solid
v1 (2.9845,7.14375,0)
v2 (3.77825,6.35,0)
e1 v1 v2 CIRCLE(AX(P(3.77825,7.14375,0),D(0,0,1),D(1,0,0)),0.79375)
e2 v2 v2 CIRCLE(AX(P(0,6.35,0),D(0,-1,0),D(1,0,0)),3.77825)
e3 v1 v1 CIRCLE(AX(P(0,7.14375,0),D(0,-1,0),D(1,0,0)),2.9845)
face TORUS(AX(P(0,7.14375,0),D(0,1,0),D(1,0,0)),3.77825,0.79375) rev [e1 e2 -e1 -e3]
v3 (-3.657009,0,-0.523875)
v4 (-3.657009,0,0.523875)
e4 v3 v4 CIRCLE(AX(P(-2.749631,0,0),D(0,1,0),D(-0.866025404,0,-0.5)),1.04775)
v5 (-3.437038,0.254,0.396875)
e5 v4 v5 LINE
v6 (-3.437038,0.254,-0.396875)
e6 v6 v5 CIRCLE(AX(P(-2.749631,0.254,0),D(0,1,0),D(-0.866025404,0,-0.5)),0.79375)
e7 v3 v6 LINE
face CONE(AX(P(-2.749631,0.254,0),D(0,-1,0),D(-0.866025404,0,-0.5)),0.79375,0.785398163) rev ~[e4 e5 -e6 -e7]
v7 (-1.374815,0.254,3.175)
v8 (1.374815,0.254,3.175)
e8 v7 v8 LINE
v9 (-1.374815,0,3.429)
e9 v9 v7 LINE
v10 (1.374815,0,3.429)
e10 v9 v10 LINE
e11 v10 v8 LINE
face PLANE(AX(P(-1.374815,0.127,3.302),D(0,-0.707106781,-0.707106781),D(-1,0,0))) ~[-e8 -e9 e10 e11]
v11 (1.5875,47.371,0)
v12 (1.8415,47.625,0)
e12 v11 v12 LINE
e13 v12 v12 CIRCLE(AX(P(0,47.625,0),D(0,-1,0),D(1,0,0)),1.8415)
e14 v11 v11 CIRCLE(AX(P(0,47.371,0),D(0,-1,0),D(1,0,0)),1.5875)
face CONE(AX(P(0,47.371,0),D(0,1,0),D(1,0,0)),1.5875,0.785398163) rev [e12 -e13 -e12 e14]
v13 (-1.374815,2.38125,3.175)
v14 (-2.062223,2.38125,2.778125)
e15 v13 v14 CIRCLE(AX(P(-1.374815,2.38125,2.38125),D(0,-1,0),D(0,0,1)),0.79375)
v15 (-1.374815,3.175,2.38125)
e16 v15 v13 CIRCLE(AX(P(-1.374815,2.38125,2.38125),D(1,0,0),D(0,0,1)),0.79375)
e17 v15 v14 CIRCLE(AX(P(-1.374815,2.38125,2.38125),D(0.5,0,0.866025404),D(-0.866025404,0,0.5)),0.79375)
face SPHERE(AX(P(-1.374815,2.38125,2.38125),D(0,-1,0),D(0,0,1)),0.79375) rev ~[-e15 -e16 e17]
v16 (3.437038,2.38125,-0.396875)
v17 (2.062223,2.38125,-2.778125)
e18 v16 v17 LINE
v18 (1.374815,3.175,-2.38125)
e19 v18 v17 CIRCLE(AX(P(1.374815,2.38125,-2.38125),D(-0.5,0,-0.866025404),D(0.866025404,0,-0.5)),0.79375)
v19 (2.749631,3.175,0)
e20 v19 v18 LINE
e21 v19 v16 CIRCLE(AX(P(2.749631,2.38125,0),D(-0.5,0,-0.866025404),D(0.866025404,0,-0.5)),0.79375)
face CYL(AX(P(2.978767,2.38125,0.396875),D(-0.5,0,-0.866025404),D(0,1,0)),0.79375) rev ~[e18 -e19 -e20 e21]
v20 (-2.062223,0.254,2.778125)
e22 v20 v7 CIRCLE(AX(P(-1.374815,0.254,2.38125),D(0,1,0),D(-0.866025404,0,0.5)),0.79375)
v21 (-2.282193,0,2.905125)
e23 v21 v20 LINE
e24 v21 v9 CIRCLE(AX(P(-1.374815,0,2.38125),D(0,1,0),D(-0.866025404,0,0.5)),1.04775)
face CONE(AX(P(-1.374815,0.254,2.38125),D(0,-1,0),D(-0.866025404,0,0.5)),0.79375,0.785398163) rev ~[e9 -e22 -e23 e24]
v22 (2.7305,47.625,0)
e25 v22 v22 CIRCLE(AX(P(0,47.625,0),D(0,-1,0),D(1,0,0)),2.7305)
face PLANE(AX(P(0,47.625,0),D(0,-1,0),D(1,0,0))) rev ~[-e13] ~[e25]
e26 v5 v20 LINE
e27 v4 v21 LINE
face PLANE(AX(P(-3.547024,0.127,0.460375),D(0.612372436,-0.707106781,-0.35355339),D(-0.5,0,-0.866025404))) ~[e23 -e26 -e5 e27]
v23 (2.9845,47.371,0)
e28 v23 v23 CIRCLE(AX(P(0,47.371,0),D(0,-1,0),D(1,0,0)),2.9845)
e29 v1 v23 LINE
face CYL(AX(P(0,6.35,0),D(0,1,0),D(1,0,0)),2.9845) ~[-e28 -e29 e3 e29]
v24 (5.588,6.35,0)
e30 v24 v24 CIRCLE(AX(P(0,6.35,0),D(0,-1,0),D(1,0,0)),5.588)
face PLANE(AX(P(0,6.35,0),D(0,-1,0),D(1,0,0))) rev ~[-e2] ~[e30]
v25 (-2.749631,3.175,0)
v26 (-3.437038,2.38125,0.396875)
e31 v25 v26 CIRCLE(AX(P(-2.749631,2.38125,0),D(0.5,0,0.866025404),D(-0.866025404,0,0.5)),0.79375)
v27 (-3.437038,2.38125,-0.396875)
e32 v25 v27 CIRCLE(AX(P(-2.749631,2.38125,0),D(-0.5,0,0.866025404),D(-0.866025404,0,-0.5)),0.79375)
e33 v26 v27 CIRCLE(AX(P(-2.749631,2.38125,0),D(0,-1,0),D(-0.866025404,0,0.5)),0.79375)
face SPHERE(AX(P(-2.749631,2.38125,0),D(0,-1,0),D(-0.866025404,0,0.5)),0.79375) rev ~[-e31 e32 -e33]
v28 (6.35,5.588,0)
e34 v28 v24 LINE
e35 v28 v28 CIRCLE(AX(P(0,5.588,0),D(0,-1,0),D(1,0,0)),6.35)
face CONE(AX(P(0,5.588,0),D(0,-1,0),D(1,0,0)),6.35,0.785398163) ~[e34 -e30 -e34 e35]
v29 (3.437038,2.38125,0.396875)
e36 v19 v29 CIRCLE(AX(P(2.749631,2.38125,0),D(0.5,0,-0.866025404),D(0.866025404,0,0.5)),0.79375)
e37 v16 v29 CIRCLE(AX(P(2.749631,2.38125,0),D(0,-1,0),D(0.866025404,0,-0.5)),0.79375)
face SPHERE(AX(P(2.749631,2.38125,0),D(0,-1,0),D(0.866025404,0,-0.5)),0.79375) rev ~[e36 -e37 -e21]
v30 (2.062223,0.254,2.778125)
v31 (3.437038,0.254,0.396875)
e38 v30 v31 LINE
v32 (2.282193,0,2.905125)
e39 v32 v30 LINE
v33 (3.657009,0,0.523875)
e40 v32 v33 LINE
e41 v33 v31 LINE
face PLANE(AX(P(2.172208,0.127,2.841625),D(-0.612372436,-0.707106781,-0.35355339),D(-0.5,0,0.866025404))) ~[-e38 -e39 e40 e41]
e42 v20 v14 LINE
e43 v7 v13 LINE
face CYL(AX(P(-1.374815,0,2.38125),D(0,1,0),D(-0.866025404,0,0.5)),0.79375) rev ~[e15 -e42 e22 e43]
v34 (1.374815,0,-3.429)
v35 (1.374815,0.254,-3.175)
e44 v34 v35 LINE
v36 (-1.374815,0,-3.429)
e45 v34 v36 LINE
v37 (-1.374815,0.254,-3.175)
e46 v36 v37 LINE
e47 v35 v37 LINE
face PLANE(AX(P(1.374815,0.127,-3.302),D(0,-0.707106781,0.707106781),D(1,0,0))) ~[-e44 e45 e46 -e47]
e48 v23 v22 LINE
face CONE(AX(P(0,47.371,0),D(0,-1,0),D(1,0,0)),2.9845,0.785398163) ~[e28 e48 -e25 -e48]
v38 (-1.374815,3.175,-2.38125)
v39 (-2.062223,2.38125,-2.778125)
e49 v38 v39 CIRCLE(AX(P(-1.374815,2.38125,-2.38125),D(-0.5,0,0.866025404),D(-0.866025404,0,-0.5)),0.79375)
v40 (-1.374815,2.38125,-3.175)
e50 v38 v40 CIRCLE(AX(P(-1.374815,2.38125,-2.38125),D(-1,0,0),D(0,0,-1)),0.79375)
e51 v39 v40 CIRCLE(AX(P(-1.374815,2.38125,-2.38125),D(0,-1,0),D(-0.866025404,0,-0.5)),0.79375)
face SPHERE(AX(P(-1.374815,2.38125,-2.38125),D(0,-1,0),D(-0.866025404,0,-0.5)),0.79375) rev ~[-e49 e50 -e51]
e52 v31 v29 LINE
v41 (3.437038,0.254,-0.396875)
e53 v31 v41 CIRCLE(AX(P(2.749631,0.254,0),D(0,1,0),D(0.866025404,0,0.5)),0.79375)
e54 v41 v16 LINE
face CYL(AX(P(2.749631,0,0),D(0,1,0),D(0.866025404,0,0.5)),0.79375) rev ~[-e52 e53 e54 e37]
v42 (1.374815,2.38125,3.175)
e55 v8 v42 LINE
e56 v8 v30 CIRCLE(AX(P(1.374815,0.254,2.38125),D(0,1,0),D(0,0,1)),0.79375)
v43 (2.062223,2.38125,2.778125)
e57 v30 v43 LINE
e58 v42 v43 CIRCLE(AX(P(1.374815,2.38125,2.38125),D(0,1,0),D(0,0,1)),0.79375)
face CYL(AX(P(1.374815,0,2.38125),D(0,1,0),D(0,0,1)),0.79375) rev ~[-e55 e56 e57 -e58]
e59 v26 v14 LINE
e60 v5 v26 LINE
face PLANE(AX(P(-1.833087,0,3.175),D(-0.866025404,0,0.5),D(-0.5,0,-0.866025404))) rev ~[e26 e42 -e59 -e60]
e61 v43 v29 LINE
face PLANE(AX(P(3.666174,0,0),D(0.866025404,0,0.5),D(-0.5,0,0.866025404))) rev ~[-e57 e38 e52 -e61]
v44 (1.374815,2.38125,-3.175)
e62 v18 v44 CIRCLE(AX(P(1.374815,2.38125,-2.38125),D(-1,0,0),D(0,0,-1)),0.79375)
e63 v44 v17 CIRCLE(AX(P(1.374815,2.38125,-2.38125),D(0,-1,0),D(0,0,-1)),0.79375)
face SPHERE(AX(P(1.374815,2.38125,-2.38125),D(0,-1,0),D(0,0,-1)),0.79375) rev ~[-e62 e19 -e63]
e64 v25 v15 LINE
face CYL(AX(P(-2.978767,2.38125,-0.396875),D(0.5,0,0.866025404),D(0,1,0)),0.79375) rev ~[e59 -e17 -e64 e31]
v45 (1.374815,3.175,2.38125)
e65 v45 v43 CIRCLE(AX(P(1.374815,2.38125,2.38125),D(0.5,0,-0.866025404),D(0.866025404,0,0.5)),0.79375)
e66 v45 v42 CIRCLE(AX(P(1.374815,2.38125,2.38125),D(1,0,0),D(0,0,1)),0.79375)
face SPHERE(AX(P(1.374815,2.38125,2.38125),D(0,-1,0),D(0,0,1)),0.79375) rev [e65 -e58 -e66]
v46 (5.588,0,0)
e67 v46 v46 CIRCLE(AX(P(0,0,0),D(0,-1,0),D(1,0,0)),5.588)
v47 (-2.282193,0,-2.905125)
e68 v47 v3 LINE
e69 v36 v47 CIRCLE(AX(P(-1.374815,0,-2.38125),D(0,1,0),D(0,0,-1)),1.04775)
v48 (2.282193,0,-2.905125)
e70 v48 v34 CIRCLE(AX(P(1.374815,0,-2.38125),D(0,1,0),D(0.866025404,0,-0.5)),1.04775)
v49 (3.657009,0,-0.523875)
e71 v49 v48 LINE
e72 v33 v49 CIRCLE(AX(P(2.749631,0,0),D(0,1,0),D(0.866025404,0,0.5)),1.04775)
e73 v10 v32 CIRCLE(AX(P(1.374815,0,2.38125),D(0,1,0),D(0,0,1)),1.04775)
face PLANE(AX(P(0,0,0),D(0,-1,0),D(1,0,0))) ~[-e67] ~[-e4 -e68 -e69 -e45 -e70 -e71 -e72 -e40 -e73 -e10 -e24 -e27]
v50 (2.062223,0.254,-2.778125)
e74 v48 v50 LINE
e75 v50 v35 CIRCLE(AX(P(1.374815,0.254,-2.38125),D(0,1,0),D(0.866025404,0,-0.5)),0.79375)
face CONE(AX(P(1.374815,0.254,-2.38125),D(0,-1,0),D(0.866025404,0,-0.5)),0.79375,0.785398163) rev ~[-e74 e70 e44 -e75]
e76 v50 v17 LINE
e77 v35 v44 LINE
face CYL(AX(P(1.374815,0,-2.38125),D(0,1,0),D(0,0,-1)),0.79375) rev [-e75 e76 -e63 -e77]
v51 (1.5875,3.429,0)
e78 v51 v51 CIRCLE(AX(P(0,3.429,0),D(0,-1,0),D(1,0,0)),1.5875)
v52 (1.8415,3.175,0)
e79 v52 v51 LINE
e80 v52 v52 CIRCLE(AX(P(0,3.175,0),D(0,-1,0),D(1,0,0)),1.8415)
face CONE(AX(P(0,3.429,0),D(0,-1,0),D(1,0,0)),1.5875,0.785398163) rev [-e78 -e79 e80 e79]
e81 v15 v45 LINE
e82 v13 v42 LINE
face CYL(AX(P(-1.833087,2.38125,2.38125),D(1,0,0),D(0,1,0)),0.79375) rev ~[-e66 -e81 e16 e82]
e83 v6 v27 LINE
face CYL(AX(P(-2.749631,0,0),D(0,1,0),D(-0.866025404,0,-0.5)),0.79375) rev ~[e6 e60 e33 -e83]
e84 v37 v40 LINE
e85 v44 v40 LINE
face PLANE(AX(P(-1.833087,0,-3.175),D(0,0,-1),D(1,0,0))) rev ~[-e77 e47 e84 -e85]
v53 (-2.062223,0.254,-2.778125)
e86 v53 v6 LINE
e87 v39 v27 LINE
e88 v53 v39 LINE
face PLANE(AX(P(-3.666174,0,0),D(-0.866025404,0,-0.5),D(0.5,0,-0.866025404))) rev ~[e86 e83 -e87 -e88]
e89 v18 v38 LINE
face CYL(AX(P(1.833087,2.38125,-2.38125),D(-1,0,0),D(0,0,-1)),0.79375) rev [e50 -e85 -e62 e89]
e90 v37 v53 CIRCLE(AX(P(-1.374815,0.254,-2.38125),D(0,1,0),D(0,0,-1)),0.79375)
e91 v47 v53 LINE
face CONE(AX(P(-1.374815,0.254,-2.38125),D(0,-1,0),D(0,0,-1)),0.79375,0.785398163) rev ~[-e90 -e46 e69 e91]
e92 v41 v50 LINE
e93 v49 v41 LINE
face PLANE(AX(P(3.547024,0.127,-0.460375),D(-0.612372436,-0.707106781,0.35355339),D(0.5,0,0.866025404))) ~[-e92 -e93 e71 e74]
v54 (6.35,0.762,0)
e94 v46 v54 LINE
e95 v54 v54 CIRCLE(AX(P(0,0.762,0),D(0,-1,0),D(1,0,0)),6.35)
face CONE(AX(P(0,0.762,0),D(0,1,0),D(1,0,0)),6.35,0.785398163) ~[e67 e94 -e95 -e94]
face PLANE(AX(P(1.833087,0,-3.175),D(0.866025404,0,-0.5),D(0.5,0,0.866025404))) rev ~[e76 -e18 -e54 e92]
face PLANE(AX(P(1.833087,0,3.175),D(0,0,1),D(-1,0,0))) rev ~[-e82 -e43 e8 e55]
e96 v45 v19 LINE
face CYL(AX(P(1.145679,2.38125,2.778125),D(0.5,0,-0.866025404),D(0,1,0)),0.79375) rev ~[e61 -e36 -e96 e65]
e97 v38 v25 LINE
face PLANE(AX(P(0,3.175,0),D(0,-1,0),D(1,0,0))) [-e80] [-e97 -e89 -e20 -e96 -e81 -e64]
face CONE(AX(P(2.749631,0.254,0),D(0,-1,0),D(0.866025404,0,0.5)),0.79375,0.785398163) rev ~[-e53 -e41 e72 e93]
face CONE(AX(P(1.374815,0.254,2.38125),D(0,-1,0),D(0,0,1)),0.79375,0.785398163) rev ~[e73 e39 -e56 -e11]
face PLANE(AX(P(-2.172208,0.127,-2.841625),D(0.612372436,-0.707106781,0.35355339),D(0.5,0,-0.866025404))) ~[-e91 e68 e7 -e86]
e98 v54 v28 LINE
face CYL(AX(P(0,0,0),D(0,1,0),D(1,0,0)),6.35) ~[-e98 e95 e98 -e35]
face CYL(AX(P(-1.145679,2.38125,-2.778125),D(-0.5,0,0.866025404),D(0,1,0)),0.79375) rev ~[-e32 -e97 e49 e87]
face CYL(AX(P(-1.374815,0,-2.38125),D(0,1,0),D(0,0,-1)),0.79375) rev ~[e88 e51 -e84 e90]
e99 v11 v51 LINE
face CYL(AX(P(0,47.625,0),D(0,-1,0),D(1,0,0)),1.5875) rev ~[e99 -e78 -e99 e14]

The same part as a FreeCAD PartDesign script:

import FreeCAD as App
import Part
import Sketcher

V = App.Vector
Q = App.Units.Quantity


def edges_at(feature, points):
    """Names of the edges that pass closest to the given points."""
    edges = feature.Shape.Edges
    near = lambda p: min(range(len(edges)), key=lambda i: edges[i].distToShape(Part.Vertex(*p))[0])
    return sorted({f"Edge{near(p) + 1}" for p in points})


def add_polygon(sketch, points):
    """Adds a closed chain of lines whose ends are joined by coincident constraints."""
    first, n = sketch.GeometryCount, len(points)
    for a, b in zip(points, points[1:] + points[:1]):
        sketch.addGeometry(Part.LineSegment(App.Vector(*a, 0), App.Vector(*b, 0)), False)
    for i in range(n):
        sketch.addConstraint(Sketcher.Constraint("Coincident", first + i, 2, first + (i + 1) % n, 1))

doc = App.newDocument("Part")
body = doc.addObject("PartDesign::Body", "Body")

# Sketch on XY plane
sketch1 = doc.addObject("Sketcher::SketchObject", "Sketch")
body.addObject(sketch1)
sketch1.AttachmentSupport = (doc.XY_Plane, [""])
sketch1.MapMode = "FlatFace"
add_polygon(sketch1, [(3.175, 0), (6.35, 0), (6.35, 6.35), (2.9845, 6.35), (2.9845, 47.625), (1.5875, 47.625), (1.5875, 3.175), (3.175, 3.175)])  # lines 0-7
sketch1.addConstraint(Sketcher.Constraint("Horizontal", 0))
sketch1.addConstraint(Sketcher.Constraint("Vertical", 1))
sketch1.addConstraint(Sketcher.Constraint("Horizontal", 2))
sketch1.addConstraint(Sketcher.Constraint("Vertical", 3))
sketch1.addConstraint(Sketcher.Constraint("Horizontal", 4))
sketch1.addConstraint(Sketcher.Constraint("Vertical", 5))
sketch1.addConstraint(Sketcher.Constraint("Horizontal", 6))
sketch1.addConstraint(Sketcher.Constraint("Vertical", 7))
sketch1.addConstraint(Sketcher.Constraint("PointOnObject", 0, 2, -1))
sketch1.addConstraint(Sketcher.Constraint("Equal", 0, 7))
sketch1.addConstraint(Sketcher.Constraint("DistanceY", 1, 1, 1, 2, Q("0.25 in")))
sketch1.addConstraint(Sketcher.Constraint("DistanceY", 5, 2, 5, 1, Q("1.75 in")))
sketch1.addConstraint(Sketcher.Constraint("DistanceX", 0, 1, 0, 2, Q("0.125 in")))
sketch1.addConstraint(Sketcher.Constraint("DistanceX", 4, 2, 4, 1, Q("0.055 in")))
sketch1.addConstraint(Sketcher.Constraint("DistanceX", 6, 1, 6, 2, Q("0.0625 in")))
sketch1.addConstraint(Sketcher.Constraint("DistanceX", -1, 1, 0, 2, Q("0.25 in")))
revolution = doc.addObject("PartDesign::Revolution", "Revolution")
body.addObject(revolution)
revolution.Profile = sketch1
revolution.ReferenceAxis = (sketch1, ["V_Axis"])
revolution.Angle = 360

# Sketch on XZ plane
sketch2 = doc.addObject("Sketcher::SketchObject", "Sketch001")
body.addObject(sketch2)
sketch2.AttachmentSupport = (doc.XZ_Plane, [""])
sketch2.MapMode = "FlatFace"
add_polygon(sketch2, [(1.833087, 3.175), (-1.833087, 3.175), (-3.666174, 0), (-1.833087, -3.175), (1.833087, -3.175), (3.666174, 0)])  # lines 0-5
sketch2.addConstraint(Sketcher.Constraint("Horizontal", 0))
sketch2.addConstraint(Sketcher.Constraint("Horizontal", 3))
sketch2.addConstraint(Sketcher.Constraint("Symmetric", 0, 2, 3, 2, -1, 1))
sketch2.addConstraint(Sketcher.Constraint("Symmetric", 1, 2, 4, 2, -1, 1))
sketch2.addConstraint(Sketcher.Constraint("PointOnObject", 1, 2, -1))
sketch2.addConstraint(Sketcher.Constraint("Parallel", 2, 5))
sketch2.addConstraint(Sketcher.Constraint("Vertical", 0, 2, 2, 2))
sketch2.addConstraint(Sketcher.Constraint("Angle", 1, Q("-120 deg")))
sketch2.addConstraint(Sketcher.Constraint("DistanceY", 2, 2, 0, 2, Q("0.25 in")))
sketch2.addConstraint(Sketcher.Constraint("DistanceX", 0, 2, 0, 1, 3.666174))
pocket1 = doc.addObject("PartDesign::Pocket", "Pocket")
body.addObject(pocket1)
pocket1.Profile = sketch2
pocket1.Length = Q("0.125 in")
doc.recompute()

fillet = doc.addObject("PartDesign::Fillet", "Fillet")
body.addObject(fillet)
fillet.Base = (pocket1, edges_at(pocket1, [
    (0, 3.175, 3.175),
    (-2.75, 3.175, 1.587),
    (-2.75, 3.175, -1.587),
    (0, 3.175, -3.175),
    (2.75, 3.175, -1.587),
    (2.75, 3.175, 1.587),
    (-1.833, 1.587, 3.175),
    (-3.666, 1.587, 0),
    (-1.833, 1.587, -3.175),
    (1.833, 1.587, -3.175),
    (3.666, 1.587, 0),
    (1.833, 1.587, 3.175),
    (-2.985, 6.35, 0),
]))
fillet.Radius = Q("0.03125 in")
doc.recompute()

chamfer = doc.addObject("PartDesign::Chamfer", "Chamfer")
body.addObject(chamfer)
chamfer.Base = (fillet, edges_at(fillet, [
    (-1.587, 3.175, 0),
    (0, 0, 3.175),
    (2.75, 0, 1.587),
    (-1.587, 47.625, 0),
    (2.75, 0, -1.587),
    (0, 0, -3.175),
    (-2.985, 47.625, 0),
    (-2.75, 0, -1.587),
    (-2.75, 0, 1.587),
    (-1.772, 0, 3.069),
    (1.772, 0, 3.069),
    (3.543, 0, 0),
    (1.772, 0, -3.069),
    (-1.772, 0, -3.069),
    (-3.543, 0, 0),
]))
chamfer.Size = Q("0.01 in")
doc.recompute()

chamfer2 = doc.addObject("PartDesign::Chamfer", "Chamfer001")
body.addObject(chamfer2)
chamfer2.Base = (chamfer, edges_at(chamfer, [(-6.35, 6.35, 0), (-6.35, 0, 0)]))
chamfer2.Size = Q("0.03 in")

doc.recompute()
